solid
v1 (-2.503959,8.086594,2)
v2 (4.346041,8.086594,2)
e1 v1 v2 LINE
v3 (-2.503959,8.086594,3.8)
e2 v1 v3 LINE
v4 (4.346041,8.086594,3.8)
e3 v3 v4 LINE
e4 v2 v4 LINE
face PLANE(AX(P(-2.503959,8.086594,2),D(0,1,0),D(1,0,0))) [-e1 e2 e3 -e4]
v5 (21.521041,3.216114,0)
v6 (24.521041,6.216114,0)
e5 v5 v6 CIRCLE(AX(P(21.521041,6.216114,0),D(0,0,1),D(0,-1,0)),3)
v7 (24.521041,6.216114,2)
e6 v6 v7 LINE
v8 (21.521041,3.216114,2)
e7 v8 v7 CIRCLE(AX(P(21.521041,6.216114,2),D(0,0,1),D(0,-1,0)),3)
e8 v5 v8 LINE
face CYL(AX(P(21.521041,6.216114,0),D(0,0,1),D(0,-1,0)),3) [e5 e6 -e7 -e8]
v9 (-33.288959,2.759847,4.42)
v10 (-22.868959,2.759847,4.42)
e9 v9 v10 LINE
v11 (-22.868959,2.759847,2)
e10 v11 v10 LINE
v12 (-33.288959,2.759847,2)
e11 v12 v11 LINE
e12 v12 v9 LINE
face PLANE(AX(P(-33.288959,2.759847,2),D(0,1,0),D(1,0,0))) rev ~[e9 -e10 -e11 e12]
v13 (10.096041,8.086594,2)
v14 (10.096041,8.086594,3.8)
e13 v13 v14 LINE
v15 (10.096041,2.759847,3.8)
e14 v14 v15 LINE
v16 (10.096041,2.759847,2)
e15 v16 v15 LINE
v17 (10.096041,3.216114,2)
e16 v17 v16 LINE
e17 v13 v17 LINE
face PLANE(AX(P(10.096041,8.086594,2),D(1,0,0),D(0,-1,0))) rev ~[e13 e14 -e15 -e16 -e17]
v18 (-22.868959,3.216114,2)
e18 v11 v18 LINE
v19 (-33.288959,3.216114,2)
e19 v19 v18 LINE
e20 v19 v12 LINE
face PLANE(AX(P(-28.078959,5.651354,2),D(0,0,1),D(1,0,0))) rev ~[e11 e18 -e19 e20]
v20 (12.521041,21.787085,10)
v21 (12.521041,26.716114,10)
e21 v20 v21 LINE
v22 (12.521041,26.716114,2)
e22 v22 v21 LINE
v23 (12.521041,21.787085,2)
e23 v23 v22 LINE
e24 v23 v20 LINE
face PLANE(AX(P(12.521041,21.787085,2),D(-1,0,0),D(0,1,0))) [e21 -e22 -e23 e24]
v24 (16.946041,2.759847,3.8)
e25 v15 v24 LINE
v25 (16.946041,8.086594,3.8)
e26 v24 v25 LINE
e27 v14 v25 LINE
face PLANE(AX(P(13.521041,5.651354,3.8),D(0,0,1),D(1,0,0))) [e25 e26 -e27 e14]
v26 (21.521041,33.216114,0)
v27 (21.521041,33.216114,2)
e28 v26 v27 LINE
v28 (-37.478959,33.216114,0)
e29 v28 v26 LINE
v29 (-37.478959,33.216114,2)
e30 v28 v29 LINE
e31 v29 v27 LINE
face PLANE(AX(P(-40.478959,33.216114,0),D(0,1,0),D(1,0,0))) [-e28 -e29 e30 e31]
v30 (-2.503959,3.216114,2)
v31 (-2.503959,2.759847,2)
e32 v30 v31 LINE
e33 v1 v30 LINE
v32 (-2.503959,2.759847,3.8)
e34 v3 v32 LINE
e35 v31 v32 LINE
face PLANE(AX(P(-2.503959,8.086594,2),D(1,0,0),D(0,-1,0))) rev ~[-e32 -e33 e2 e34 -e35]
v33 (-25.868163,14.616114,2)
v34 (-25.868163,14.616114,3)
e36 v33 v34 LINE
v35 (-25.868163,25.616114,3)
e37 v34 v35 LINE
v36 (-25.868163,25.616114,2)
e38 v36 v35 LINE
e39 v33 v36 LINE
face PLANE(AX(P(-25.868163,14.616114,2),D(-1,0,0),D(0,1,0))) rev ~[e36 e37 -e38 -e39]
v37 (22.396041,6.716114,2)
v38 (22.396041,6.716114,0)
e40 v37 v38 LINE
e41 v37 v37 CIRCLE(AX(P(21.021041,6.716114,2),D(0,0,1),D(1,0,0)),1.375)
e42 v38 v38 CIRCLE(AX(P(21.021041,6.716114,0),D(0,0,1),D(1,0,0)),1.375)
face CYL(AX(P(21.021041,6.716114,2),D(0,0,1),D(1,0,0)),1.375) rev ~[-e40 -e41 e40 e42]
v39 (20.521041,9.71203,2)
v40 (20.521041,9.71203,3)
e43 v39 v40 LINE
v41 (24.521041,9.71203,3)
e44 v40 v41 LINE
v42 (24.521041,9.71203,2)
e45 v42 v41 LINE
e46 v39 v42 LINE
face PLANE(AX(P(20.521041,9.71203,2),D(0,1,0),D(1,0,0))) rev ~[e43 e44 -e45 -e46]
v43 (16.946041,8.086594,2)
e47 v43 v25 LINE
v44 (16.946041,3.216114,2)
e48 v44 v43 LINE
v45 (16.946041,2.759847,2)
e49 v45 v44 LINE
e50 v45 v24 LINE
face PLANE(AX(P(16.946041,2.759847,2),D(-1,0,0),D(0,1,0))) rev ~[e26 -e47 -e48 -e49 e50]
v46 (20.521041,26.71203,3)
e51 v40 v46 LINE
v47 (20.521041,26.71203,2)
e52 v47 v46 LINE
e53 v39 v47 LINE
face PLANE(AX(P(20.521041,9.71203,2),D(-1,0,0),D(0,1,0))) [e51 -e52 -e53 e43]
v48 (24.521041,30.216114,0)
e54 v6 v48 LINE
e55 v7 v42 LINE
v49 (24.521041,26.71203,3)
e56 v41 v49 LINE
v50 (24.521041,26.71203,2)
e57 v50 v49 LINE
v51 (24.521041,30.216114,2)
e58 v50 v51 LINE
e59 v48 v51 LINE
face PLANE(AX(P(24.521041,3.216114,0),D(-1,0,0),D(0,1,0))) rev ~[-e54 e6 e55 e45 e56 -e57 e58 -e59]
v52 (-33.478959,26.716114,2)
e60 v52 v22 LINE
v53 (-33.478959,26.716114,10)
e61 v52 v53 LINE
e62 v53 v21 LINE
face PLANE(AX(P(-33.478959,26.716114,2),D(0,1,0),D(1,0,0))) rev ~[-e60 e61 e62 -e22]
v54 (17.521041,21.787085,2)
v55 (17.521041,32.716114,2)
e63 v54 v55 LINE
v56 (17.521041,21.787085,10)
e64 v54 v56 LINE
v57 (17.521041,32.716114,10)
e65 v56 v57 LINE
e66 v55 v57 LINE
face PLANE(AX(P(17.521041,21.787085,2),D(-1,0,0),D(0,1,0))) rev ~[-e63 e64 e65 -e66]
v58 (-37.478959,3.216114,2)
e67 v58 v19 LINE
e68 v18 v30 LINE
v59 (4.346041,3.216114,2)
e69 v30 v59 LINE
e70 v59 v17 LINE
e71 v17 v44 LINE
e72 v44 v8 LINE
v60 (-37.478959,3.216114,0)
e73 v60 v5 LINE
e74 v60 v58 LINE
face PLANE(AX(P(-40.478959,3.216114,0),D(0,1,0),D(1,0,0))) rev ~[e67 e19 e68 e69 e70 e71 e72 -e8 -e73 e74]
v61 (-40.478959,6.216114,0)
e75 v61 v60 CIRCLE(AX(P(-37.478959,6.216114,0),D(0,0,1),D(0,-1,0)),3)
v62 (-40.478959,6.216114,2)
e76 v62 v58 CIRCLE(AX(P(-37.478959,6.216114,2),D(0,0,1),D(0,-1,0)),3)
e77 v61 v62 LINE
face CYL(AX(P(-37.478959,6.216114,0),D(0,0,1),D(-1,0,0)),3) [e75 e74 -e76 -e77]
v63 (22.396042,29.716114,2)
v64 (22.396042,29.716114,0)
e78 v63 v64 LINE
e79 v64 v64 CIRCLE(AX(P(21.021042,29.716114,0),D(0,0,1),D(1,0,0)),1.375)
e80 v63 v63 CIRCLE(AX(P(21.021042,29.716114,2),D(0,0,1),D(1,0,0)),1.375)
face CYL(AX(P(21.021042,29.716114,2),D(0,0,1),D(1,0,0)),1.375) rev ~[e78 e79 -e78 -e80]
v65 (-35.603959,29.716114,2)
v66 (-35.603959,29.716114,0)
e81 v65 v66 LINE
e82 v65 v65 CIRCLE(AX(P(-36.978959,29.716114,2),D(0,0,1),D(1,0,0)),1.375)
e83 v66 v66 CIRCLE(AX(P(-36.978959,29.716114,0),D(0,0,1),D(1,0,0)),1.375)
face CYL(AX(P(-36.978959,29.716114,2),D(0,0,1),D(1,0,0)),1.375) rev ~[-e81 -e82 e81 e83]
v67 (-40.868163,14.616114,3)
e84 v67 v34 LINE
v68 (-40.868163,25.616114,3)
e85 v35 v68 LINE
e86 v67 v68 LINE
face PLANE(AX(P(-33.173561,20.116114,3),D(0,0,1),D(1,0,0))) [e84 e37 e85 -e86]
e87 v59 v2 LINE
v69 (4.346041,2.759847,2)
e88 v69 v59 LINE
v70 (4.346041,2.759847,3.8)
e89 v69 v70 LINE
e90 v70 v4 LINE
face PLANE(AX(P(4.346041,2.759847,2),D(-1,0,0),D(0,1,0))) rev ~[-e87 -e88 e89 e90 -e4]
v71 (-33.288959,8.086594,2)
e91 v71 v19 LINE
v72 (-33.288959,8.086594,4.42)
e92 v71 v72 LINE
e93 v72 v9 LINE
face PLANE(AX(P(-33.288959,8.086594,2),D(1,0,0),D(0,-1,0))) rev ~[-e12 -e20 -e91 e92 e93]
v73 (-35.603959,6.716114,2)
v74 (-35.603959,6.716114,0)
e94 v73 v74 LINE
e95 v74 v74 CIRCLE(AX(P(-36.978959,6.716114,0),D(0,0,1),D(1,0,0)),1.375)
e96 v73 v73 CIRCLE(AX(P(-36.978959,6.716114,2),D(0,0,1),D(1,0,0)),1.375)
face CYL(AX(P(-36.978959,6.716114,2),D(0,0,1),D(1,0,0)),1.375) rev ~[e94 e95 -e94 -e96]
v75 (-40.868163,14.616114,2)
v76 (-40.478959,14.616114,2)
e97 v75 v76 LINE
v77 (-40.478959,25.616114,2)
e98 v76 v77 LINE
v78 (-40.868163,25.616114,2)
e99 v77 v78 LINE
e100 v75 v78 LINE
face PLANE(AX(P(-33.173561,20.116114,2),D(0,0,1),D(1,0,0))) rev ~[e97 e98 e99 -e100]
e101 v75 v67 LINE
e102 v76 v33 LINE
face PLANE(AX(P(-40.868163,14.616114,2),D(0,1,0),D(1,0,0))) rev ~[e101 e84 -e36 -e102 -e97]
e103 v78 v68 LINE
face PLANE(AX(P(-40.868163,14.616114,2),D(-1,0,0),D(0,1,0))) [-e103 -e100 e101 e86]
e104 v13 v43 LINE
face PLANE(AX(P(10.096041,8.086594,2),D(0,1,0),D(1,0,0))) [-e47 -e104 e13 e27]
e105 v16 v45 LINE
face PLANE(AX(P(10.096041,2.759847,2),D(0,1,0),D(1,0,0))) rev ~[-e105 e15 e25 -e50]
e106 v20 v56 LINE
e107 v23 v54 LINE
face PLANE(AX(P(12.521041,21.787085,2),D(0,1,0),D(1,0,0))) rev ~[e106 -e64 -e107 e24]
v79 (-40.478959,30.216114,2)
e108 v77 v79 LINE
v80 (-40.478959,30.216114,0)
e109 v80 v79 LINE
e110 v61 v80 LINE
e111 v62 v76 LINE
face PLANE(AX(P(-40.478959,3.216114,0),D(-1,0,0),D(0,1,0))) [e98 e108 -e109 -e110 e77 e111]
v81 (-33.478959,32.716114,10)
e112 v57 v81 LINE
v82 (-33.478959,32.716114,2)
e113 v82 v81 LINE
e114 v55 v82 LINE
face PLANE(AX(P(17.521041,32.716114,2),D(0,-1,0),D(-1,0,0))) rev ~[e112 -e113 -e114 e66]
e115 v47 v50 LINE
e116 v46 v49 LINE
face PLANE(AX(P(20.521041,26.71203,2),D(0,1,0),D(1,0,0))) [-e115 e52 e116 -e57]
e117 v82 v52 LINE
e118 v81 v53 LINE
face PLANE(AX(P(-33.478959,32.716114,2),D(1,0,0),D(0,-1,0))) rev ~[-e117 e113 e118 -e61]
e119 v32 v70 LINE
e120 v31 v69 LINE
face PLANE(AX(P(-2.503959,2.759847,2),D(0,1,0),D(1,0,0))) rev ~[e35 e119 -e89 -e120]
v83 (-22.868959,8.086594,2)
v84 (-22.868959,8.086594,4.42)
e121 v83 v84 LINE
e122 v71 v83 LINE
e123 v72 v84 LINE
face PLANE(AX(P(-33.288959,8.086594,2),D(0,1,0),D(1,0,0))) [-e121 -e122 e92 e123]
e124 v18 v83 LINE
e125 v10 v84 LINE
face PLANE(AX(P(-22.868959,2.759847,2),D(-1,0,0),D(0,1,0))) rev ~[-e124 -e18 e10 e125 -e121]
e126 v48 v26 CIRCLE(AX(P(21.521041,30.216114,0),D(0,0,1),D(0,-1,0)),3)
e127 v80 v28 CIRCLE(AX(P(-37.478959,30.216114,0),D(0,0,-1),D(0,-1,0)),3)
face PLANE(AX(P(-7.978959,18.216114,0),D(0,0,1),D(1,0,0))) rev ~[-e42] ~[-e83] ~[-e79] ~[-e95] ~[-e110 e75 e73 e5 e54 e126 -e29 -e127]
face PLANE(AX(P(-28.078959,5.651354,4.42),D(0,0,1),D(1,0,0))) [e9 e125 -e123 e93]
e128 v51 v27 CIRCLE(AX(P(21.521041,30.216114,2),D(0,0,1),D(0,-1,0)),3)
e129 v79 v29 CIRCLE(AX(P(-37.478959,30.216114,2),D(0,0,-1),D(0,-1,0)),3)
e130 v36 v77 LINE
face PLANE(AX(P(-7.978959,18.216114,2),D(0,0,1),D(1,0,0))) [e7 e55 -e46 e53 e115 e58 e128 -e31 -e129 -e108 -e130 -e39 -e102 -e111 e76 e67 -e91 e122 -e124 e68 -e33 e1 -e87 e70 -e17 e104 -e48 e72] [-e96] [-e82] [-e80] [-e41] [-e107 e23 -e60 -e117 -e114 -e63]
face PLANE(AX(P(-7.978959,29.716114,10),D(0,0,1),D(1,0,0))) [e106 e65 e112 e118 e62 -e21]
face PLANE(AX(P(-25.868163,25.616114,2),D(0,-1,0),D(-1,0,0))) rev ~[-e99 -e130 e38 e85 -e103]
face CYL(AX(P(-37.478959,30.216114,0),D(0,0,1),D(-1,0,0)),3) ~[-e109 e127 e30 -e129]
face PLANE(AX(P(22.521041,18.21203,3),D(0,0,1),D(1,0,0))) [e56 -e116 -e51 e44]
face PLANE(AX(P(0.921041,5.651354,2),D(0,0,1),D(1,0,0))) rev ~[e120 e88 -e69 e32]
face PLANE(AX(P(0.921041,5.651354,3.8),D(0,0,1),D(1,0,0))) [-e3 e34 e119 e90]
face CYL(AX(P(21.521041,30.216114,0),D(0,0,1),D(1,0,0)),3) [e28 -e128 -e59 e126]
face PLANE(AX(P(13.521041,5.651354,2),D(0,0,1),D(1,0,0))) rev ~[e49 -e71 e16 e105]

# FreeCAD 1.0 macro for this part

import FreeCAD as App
import Part
import Sketcher
from FreeCAD import Vector
Q = App.Units.Quantity


def edges_at(feature, points):
    """Names of the edges that pass closest to the given points."""
    edges = feature.Shape.Edges
    near = lambda p: min(range(len(edges)), key=lambda i: edges[i].distToShape(Part.Vertex(*p))[0])
    return sorted({f"Edge{near(p) + 1}" for p in points})

doc = App.newDocument("Part")
body = doc.addObject("PartDesign::Body", "Body")

sketch1 = doc.addObject("Sketcher::SketchObject", "Sketch")
body.addObject(sketch1)
sketch1.AttachmentSupport = (doc.XY_Plane, [""])
sketch1.MapMode = "FlatFace"
sketch1.addGeometry([
    Part.LineSegment(Vector(-40, 33, 0), Vector(-40, 3, 0)),
    Part.LineSegment(Vector(-40, 3, 0), Vector(25, 3, 0)),
    Part.LineSegment(Vector(25, 3, 0), Vector(25, 33, 0)),
    Part.LineSegment(Vector(25, 33, 0), Vector(-40, 33, 0)),
], False)
sketch1.addConstraint([
    Sketcher.Constraint("Coincident", 0, 2, 1, 1),
    Sketcher.Constraint("Coincident", 1, 2, 2, 1),
    Sketcher.Constraint("Coincident", 2, 2, 3, 1),
    Sketcher.Constraint("Coincident", 3, 2, 0, 1),
    Sketcher.Constraint("Vertical", 0),
    Sketcher.Constraint("Horizontal", 1),
    Sketcher.Constraint("Vertical", 2),
    Sketcher.Constraint("Horizontal", 3),
    Sketcher.Constraint("DistanceX", 1, 1, 1, 2, Q("65 mm")),
    Sketcher.Constraint("DistanceY", 0, 2, 0, 1, Q("30 mm")),
    Sketcher.Constraint("DistanceX", 0, 2, -1, 1, Q("40.478959 mm")),
    Sketcher.Constraint("DistanceY", -1, 1, 0, 2, Q("3.216114 mm")),
])
pad1 = doc.addObject("PartDesign::Pad", "Pad")
body.addObject(pad1)
pad1.Profile = sketch1
pad1.Length = 2
doc.recompute()

fillet = doc.addObject("PartDesign::Fillet", "Fillet")
body.addObject(fillet)
fillet.Base = (pad1, edges_at(pad1, [
    (-40.479, 33.216, 1),
    (-40.479, 3.216, 1),
    (24.521, 3.216, 1),
    (24.521, 33.216, 1),
]))
fillet.Radius = 3

sketch2 = doc.addObject("Sketcher::SketchObject", "Sketch001")
body.addObject(sketch2)
sketch2.AttachmentSupport = (doc.XY_Plane, [""])
sketch2.MapMode = "FlatFace"
sketch2.AttachmentOffset = App.Placement(Vector(0, 0, 2), App.Rotation())
sketch2.addGeometry([
    Part.Circle(Vector(21, 29.7, 0), Vector(0, 0, 1), 1.4),
    Part.Circle(Vector(-37, 6.7, 0), Vector(0, 0, 1), 1.4),
    Part.Circle(Vector(-37, 29.7, 0), Vector(0, 0, 1), 1.4),
    Part.Circle(Vector(21, 6.7, 0), Vector(0, 0, 1), 1.4),
], False)
sketch2.addConstraint([
    Sketcher.Constraint("Equal", 0, 1),
    Sketcher.Constraint("Equal", 1, 2),
    Sketcher.Constraint("Equal", 2, 3),
    Sketcher.Constraint("Horizontal", 0, 3, 2, 3),
    Sketcher.Constraint("Horizontal", 1, 3, 3, 3),
    Sketcher.Constraint("Vertical", 1, 3, 2, 3),
    Sketcher.Constraint("Vertical", 0, 3, 3, 3),
    Sketcher.Constraint("Diameter", 0, Q("2.75 mm")),
    Sketcher.Constraint("DistanceX", 1, 3, 0, 3, Q("58.000001 mm")),
    Sketcher.Constraint("DistanceY", 1, 3, 0, 3, Q("23 mm")),
    Sketcher.Constraint("DistanceX", 1, 3, -1, 1, Q("36.978959 mm")),
    Sketcher.Constraint("DistanceY", -1, 1, 0, 3, Q("29.716114 mm")),
])
pocket1 = doc.addObject("PartDesign::Pocket", "Pocket")
body.addObject(pocket1)
pocket1.Profile = sketch2
pocket1.Length = 2

sketch3 = doc.addObject("Sketcher::SketchObject", "Sketch002")
body.addObject(sketch3)
sketch3.AttachmentSupport = (doc.XY_Plane, [""])
sketch3.MapMode = "FlatFace"
sketch3.AttachmentOffset = App.Placement(Vector(0, 0, 2), App.Rotation())
sketch3.addGeometry([
    Part.LineSegment(Vector(-33, 8, 0), Vector(-33, 3, 0)),
    Part.LineSegment(Vector(-33, 3, 0), Vector(-23, 3, 0)),
    Part.LineSegment(Vector(-23, 3, 0), Vector(-23, 8, 0)),
    Part.LineSegment(Vector(-23, 8, 0), Vector(-33, 8, 0)),
], False)
sketch3.addConstraint([
    Sketcher.Constraint("Coincident", 0, 2, 1, 1),
    Sketcher.Constraint("Coincident", 1, 2, 2, 1),
    Sketcher.Constraint("Coincident", 2, 2, 3, 1),
    Sketcher.Constraint("Coincident", 3, 2, 0, 1),
    Sketcher.Constraint("Vertical", 0),
    Sketcher.Constraint("Horizontal", 1),
    Sketcher.Constraint("Vertical", 2),
    Sketcher.Constraint("Horizontal", 3),
    Sketcher.Constraint("DistanceX", 1, 1, 1, 2, Q("10.42 mm")),
    Sketcher.Constraint("DistanceY", 0, 2, 0, 1, Q("5.326747 mm")),
    Sketcher.Constraint("DistanceX", 0, 2, -1, 1, Q("33.288959 mm")),
    Sketcher.Constraint("DistanceY", -1, 1, 0, 2, Q("2.759847 mm")),
])
pad2 = doc.addObject("PartDesign::Pad", "Pad001")
body.addObject(pad2)
pad2.Profile = sketch3
pad2.Length = 2.42

sketch4 = doc.addObject("Sketcher::SketchObject", "Sketch003")
body.addObject(sketch4)
sketch4.AttachmentSupport = (doc.XY_Plane, [""])
sketch4.MapMode = "FlatFace"
sketch4.AttachmentOffset = App.Placement(Vector(0, 0, 2), App.Rotation())
sketch4.addGeometry([
    Part.LineSegment(Vector(-3, 8, 0), Vector(-3, 3, 0)),
    Part.LineSegment(Vector(-3, 3, 0), Vector(4, 3, 0)),
    Part.LineSegment(Vector(4, 3, 0), Vector(4, 8, 0)),
    Part.LineSegment(Vector(4, 8, 0), Vector(-3, 8, 0)),
    Part.LineSegment(Vector(10, 8, 0), Vector(10, 3, 0)),
    Part.LineSegment(Vector(10, 3, 0), Vector(17, 3, 0)),
    Part.LineSegment(Vector(17, 3, 0), Vector(17, 8, 0)),
    Part.LineSegment(Vector(17, 8, 0), Vector(10, 8, 0)),
], False)
sketch4.addConstraint([
    Sketcher.Constraint("Coincident", 0, 2, 1, 1),
    Sketcher.Constraint("Coincident", 1, 2, 2, 1),
    Sketcher.Constraint("Coincident", 2, 2, 3, 1),
    Sketcher.Constraint("Coincident", 3, 2, 0, 1),
    Sketcher.Constraint("Coincident", 4, 2, 5, 1),
    Sketcher.Constraint("Coincident", 5, 2, 6, 1),
    Sketcher.Constraint("Coincident", 6, 2, 7, 1),
    Sketcher.Constraint("Coincident", 7, 2, 4, 1),
    Sketcher.Constraint("Vertical", 0),
    Sketcher.Constraint("Horizontal", 1),
    Sketcher.Constraint("Vertical", 2),
    Sketcher.Constraint("Horizontal", 3),
    Sketcher.Constraint("Vertical", 4),
    Sketcher.Constraint("Horizontal", 5),
    Sketcher.Constraint("Vertical", 6),
    Sketcher.Constraint("Horizontal", 7),
    Sketcher.Constraint("Horizontal", 1, 2, 4, 2),
    Sketcher.Constraint("Horizontal", 3, 2, 6, 2),
    Sketcher.Constraint("Equal", 3, 5),
    Sketcher.Constraint("DistanceX", 1, 1, 1, 2, Q("6.85 mm")),
    Sketcher.Constraint("DistanceX", 0, 2, 4, 2, Q("12.6 mm")),
    Sketcher.Constraint("DistanceY", 0, 2, 0, 1, Q("5.326747 mm")),
    Sketcher.Constraint("DistanceX", 0, 2, -1, 1, Q("2.503959 mm")),
    Sketcher.Constraint("DistanceY", -1, 1, 0, 2, Q("2.759847 mm")),
])
pad3 = doc.addObject("PartDesign::Pad", "Pad002")
body.addObject(pad3)
pad3.Profile = sketch4
pad3.Length = 1.8

sketch5 = doc.addObject("Sketcher::SketchObject", "Sketch004")
body.addObject(sketch5)
sketch5.AttachmentSupport = (doc.XY_Plane, [""])
sketch5.MapMode = "FlatFace"
sketch5.AttachmentOffset = App.Placement(Vector(0, 0, 2), App.Rotation())
sketch5.addGeometry([
    Part.LineSegment(Vector(-26, 15, 0), Vector(-26, 26, 0)),
    Part.LineSegment(Vector(-26, 26, 0), Vector(-41, 26, 0)),
    Part.LineSegment(Vector(-41, 26, 0), Vector(-41, 15, 0)),
    Part.LineSegment(Vector(-41, 15, 0), Vector(-26, 15, 0)),
], False)
sketch5.addConstraint([
    Sketcher.Constraint("Coincident", 0, 2, 1, 1),
    Sketcher.Constraint("Coincident", 1, 2, 2, 1),
    Sketcher.Constraint("Coincident", 2, 2, 3, 1),
    Sketcher.Constraint("Coincident", 3, 2, 0, 1),
    Sketcher.Constraint("Vertical", 0),
    Sketcher.Constraint("Horizontal", 1),
    Sketcher.Constraint("Vertical", 2),
    Sketcher.Constraint("Horizontal", 3),
    Sketcher.Constraint("DistanceX", 1, 2, 1, 1, Q("15 mm")),
    Sketcher.Constraint("DistanceY", 0, 1, 0, 2, Q("11 mm")),
    Sketcher.Constraint("DistanceX", 0, 2, -1, 1, Q("25.868163 mm")),
    Sketcher.Constraint("DistanceY", -1, 1, 0, 2, Q("25.616114 mm")),
])
pad4 = doc.addObject("PartDesign::Pad", "Pad003")
body.addObject(pad4)
pad4.Profile = sketch5
pad4.Length = 1

sketch6 = doc.addObject("Sketcher::SketchObject", "Sketch005")
body.addObject(sketch6)
sketch6.AttachmentSupport = (doc.XY_Plane, [""])
sketch6.MapMode = "FlatFace"
sketch6.AttachmentOffset = App.Placement(Vector(0, 0, 2), App.Rotation())
sketch6.addGeometry([
    Part.LineSegment(Vector(20.5, 26.7, 0), Vector(20.5, 9.7, 0)),
    Part.LineSegment(Vector(20.5, 9.7, 0), Vector(24.5, 9.7, 0)),
    Part.LineSegment(Vector(24.5, 9.7, 0), Vector(24.5, 26.7, 0)),
    Part.LineSegment(Vector(24.5, 26.7, 0), Vector(20.5, 26.7, 0)),
], False)
sketch6.addConstraint([
    Sketcher.Constraint("Coincident", 0, 2, 1, 1),
    Sketcher.Constraint("Coincident", 1, 2, 2, 1),
    Sketcher.Constraint("Coincident", 2, 2, 3, 1),
    Sketcher.Constraint("Coincident", 3, 2, 0, 1),
    Sketcher.Constraint("Vertical", 0),
    Sketcher.Constraint("Horizontal", 1),
    Sketcher.Constraint("Vertical", 2),
    Sketcher.Constraint("Horizontal", 3),
    Sketcher.Constraint("DistanceX", 1, 1, 1, 2, Q("4 mm")),
    Sketcher.Constraint("DistanceY", 0, 2, 0, 1, Q("17 mm")),
    Sketcher.Constraint("DistanceX", -1, 1, 0, 2, Q("20.521041 mm")),
    Sketcher.Constraint("DistanceY", -1, 1, 0, 2, Q("9.71203 mm")),
])
pad5 = doc.addObject("PartDesign::Pad", "Pad004")
body.addObject(pad5)
pad5.Profile = sketch6
pad5.Length = 1

sketch7 = doc.addObject("Sketcher::SketchObject", "Sketch006")
body.addObject(sketch7)
sketch7.AttachmentSupport = (doc.XY_Plane, [""])
sketch7.MapMode = "FlatFace"
sketch7.AttachmentOffset = App.Placement(Vector(0, 0, 2), App.Rotation())
sketch7.addGeometry([
    Part.LineSegment(Vector(17.5, 32.7, 0), Vector(-33.5, 32.7, 0)),
    Part.LineSegment(Vector(-33.5, 32.7, 0), Vector(-33.5, 26.7, 0)),
    Part.LineSegment(Vector(-33.5, 26.7, 0), Vector(12.5, 26.7, 0)),
    Part.LineSegment(Vector(12.5, 26.7, 0), Vector(12.5, 21.8, 0)),
    Part.LineSegment(Vector(12.5, 21.8, 0), Vector(17.5, 21.8, 0)),
    Part.LineSegment(Vector(17.5, 21.8, 0), Vector(17.5, 32.7, 0)),
], False)
sketch7.addConstraint([
    Sketcher.Constraint("Coincident", 0, 2, 1, 1),
    Sketcher.Constraint("Coincident", 1, 2, 2, 1),
    Sketcher.Constraint("Coincident", 2, 2, 3, 1),
    Sketcher.Constraint("Coincident", 3, 2, 4, 1),
    Sketcher.Constraint("Coincident", 4, 2, 5, 1),
    Sketcher.Constraint("Coincident", 5, 2, 0, 1),
    Sketcher.Constraint("Horizontal", 0),
    Sketcher.Constraint("Vertical", 1),
    Sketcher.Constraint("Horizontal", 2),
    Sketcher.Constraint("Vertical", 3),
    Sketcher.Constraint("Horizontal", 4),
    Sketcher.Constraint("Vertical", 5),
    Sketcher.Constraint("DistanceX", 0, 2, 0, 1, Q("51 mm")),
    Sketcher.Constraint("DistanceX", 2, 1, 2, 2, Q("46 mm")),
    Sketcher.Constraint("DistanceY", 1, 2, 1, 1, Q("6 mm")),
    Sketcher.Constraint("DistanceY", 3, 2, 3, 1, Q("4.929029 mm")),
    Sketcher.Constraint("DistanceX", 0, 2, -1, 1, Q("33.478959 mm")),
    Sketcher.Constraint("DistanceY", -1, 1, 0, 2, Q("32.716114 mm")),
])
pad6 = doc.addObject("PartDesign::Pad", "Pad005")
body.addObject(pad6)
pad6.Profile = sketch7
pad6.Length = 8

doc.recompute()
